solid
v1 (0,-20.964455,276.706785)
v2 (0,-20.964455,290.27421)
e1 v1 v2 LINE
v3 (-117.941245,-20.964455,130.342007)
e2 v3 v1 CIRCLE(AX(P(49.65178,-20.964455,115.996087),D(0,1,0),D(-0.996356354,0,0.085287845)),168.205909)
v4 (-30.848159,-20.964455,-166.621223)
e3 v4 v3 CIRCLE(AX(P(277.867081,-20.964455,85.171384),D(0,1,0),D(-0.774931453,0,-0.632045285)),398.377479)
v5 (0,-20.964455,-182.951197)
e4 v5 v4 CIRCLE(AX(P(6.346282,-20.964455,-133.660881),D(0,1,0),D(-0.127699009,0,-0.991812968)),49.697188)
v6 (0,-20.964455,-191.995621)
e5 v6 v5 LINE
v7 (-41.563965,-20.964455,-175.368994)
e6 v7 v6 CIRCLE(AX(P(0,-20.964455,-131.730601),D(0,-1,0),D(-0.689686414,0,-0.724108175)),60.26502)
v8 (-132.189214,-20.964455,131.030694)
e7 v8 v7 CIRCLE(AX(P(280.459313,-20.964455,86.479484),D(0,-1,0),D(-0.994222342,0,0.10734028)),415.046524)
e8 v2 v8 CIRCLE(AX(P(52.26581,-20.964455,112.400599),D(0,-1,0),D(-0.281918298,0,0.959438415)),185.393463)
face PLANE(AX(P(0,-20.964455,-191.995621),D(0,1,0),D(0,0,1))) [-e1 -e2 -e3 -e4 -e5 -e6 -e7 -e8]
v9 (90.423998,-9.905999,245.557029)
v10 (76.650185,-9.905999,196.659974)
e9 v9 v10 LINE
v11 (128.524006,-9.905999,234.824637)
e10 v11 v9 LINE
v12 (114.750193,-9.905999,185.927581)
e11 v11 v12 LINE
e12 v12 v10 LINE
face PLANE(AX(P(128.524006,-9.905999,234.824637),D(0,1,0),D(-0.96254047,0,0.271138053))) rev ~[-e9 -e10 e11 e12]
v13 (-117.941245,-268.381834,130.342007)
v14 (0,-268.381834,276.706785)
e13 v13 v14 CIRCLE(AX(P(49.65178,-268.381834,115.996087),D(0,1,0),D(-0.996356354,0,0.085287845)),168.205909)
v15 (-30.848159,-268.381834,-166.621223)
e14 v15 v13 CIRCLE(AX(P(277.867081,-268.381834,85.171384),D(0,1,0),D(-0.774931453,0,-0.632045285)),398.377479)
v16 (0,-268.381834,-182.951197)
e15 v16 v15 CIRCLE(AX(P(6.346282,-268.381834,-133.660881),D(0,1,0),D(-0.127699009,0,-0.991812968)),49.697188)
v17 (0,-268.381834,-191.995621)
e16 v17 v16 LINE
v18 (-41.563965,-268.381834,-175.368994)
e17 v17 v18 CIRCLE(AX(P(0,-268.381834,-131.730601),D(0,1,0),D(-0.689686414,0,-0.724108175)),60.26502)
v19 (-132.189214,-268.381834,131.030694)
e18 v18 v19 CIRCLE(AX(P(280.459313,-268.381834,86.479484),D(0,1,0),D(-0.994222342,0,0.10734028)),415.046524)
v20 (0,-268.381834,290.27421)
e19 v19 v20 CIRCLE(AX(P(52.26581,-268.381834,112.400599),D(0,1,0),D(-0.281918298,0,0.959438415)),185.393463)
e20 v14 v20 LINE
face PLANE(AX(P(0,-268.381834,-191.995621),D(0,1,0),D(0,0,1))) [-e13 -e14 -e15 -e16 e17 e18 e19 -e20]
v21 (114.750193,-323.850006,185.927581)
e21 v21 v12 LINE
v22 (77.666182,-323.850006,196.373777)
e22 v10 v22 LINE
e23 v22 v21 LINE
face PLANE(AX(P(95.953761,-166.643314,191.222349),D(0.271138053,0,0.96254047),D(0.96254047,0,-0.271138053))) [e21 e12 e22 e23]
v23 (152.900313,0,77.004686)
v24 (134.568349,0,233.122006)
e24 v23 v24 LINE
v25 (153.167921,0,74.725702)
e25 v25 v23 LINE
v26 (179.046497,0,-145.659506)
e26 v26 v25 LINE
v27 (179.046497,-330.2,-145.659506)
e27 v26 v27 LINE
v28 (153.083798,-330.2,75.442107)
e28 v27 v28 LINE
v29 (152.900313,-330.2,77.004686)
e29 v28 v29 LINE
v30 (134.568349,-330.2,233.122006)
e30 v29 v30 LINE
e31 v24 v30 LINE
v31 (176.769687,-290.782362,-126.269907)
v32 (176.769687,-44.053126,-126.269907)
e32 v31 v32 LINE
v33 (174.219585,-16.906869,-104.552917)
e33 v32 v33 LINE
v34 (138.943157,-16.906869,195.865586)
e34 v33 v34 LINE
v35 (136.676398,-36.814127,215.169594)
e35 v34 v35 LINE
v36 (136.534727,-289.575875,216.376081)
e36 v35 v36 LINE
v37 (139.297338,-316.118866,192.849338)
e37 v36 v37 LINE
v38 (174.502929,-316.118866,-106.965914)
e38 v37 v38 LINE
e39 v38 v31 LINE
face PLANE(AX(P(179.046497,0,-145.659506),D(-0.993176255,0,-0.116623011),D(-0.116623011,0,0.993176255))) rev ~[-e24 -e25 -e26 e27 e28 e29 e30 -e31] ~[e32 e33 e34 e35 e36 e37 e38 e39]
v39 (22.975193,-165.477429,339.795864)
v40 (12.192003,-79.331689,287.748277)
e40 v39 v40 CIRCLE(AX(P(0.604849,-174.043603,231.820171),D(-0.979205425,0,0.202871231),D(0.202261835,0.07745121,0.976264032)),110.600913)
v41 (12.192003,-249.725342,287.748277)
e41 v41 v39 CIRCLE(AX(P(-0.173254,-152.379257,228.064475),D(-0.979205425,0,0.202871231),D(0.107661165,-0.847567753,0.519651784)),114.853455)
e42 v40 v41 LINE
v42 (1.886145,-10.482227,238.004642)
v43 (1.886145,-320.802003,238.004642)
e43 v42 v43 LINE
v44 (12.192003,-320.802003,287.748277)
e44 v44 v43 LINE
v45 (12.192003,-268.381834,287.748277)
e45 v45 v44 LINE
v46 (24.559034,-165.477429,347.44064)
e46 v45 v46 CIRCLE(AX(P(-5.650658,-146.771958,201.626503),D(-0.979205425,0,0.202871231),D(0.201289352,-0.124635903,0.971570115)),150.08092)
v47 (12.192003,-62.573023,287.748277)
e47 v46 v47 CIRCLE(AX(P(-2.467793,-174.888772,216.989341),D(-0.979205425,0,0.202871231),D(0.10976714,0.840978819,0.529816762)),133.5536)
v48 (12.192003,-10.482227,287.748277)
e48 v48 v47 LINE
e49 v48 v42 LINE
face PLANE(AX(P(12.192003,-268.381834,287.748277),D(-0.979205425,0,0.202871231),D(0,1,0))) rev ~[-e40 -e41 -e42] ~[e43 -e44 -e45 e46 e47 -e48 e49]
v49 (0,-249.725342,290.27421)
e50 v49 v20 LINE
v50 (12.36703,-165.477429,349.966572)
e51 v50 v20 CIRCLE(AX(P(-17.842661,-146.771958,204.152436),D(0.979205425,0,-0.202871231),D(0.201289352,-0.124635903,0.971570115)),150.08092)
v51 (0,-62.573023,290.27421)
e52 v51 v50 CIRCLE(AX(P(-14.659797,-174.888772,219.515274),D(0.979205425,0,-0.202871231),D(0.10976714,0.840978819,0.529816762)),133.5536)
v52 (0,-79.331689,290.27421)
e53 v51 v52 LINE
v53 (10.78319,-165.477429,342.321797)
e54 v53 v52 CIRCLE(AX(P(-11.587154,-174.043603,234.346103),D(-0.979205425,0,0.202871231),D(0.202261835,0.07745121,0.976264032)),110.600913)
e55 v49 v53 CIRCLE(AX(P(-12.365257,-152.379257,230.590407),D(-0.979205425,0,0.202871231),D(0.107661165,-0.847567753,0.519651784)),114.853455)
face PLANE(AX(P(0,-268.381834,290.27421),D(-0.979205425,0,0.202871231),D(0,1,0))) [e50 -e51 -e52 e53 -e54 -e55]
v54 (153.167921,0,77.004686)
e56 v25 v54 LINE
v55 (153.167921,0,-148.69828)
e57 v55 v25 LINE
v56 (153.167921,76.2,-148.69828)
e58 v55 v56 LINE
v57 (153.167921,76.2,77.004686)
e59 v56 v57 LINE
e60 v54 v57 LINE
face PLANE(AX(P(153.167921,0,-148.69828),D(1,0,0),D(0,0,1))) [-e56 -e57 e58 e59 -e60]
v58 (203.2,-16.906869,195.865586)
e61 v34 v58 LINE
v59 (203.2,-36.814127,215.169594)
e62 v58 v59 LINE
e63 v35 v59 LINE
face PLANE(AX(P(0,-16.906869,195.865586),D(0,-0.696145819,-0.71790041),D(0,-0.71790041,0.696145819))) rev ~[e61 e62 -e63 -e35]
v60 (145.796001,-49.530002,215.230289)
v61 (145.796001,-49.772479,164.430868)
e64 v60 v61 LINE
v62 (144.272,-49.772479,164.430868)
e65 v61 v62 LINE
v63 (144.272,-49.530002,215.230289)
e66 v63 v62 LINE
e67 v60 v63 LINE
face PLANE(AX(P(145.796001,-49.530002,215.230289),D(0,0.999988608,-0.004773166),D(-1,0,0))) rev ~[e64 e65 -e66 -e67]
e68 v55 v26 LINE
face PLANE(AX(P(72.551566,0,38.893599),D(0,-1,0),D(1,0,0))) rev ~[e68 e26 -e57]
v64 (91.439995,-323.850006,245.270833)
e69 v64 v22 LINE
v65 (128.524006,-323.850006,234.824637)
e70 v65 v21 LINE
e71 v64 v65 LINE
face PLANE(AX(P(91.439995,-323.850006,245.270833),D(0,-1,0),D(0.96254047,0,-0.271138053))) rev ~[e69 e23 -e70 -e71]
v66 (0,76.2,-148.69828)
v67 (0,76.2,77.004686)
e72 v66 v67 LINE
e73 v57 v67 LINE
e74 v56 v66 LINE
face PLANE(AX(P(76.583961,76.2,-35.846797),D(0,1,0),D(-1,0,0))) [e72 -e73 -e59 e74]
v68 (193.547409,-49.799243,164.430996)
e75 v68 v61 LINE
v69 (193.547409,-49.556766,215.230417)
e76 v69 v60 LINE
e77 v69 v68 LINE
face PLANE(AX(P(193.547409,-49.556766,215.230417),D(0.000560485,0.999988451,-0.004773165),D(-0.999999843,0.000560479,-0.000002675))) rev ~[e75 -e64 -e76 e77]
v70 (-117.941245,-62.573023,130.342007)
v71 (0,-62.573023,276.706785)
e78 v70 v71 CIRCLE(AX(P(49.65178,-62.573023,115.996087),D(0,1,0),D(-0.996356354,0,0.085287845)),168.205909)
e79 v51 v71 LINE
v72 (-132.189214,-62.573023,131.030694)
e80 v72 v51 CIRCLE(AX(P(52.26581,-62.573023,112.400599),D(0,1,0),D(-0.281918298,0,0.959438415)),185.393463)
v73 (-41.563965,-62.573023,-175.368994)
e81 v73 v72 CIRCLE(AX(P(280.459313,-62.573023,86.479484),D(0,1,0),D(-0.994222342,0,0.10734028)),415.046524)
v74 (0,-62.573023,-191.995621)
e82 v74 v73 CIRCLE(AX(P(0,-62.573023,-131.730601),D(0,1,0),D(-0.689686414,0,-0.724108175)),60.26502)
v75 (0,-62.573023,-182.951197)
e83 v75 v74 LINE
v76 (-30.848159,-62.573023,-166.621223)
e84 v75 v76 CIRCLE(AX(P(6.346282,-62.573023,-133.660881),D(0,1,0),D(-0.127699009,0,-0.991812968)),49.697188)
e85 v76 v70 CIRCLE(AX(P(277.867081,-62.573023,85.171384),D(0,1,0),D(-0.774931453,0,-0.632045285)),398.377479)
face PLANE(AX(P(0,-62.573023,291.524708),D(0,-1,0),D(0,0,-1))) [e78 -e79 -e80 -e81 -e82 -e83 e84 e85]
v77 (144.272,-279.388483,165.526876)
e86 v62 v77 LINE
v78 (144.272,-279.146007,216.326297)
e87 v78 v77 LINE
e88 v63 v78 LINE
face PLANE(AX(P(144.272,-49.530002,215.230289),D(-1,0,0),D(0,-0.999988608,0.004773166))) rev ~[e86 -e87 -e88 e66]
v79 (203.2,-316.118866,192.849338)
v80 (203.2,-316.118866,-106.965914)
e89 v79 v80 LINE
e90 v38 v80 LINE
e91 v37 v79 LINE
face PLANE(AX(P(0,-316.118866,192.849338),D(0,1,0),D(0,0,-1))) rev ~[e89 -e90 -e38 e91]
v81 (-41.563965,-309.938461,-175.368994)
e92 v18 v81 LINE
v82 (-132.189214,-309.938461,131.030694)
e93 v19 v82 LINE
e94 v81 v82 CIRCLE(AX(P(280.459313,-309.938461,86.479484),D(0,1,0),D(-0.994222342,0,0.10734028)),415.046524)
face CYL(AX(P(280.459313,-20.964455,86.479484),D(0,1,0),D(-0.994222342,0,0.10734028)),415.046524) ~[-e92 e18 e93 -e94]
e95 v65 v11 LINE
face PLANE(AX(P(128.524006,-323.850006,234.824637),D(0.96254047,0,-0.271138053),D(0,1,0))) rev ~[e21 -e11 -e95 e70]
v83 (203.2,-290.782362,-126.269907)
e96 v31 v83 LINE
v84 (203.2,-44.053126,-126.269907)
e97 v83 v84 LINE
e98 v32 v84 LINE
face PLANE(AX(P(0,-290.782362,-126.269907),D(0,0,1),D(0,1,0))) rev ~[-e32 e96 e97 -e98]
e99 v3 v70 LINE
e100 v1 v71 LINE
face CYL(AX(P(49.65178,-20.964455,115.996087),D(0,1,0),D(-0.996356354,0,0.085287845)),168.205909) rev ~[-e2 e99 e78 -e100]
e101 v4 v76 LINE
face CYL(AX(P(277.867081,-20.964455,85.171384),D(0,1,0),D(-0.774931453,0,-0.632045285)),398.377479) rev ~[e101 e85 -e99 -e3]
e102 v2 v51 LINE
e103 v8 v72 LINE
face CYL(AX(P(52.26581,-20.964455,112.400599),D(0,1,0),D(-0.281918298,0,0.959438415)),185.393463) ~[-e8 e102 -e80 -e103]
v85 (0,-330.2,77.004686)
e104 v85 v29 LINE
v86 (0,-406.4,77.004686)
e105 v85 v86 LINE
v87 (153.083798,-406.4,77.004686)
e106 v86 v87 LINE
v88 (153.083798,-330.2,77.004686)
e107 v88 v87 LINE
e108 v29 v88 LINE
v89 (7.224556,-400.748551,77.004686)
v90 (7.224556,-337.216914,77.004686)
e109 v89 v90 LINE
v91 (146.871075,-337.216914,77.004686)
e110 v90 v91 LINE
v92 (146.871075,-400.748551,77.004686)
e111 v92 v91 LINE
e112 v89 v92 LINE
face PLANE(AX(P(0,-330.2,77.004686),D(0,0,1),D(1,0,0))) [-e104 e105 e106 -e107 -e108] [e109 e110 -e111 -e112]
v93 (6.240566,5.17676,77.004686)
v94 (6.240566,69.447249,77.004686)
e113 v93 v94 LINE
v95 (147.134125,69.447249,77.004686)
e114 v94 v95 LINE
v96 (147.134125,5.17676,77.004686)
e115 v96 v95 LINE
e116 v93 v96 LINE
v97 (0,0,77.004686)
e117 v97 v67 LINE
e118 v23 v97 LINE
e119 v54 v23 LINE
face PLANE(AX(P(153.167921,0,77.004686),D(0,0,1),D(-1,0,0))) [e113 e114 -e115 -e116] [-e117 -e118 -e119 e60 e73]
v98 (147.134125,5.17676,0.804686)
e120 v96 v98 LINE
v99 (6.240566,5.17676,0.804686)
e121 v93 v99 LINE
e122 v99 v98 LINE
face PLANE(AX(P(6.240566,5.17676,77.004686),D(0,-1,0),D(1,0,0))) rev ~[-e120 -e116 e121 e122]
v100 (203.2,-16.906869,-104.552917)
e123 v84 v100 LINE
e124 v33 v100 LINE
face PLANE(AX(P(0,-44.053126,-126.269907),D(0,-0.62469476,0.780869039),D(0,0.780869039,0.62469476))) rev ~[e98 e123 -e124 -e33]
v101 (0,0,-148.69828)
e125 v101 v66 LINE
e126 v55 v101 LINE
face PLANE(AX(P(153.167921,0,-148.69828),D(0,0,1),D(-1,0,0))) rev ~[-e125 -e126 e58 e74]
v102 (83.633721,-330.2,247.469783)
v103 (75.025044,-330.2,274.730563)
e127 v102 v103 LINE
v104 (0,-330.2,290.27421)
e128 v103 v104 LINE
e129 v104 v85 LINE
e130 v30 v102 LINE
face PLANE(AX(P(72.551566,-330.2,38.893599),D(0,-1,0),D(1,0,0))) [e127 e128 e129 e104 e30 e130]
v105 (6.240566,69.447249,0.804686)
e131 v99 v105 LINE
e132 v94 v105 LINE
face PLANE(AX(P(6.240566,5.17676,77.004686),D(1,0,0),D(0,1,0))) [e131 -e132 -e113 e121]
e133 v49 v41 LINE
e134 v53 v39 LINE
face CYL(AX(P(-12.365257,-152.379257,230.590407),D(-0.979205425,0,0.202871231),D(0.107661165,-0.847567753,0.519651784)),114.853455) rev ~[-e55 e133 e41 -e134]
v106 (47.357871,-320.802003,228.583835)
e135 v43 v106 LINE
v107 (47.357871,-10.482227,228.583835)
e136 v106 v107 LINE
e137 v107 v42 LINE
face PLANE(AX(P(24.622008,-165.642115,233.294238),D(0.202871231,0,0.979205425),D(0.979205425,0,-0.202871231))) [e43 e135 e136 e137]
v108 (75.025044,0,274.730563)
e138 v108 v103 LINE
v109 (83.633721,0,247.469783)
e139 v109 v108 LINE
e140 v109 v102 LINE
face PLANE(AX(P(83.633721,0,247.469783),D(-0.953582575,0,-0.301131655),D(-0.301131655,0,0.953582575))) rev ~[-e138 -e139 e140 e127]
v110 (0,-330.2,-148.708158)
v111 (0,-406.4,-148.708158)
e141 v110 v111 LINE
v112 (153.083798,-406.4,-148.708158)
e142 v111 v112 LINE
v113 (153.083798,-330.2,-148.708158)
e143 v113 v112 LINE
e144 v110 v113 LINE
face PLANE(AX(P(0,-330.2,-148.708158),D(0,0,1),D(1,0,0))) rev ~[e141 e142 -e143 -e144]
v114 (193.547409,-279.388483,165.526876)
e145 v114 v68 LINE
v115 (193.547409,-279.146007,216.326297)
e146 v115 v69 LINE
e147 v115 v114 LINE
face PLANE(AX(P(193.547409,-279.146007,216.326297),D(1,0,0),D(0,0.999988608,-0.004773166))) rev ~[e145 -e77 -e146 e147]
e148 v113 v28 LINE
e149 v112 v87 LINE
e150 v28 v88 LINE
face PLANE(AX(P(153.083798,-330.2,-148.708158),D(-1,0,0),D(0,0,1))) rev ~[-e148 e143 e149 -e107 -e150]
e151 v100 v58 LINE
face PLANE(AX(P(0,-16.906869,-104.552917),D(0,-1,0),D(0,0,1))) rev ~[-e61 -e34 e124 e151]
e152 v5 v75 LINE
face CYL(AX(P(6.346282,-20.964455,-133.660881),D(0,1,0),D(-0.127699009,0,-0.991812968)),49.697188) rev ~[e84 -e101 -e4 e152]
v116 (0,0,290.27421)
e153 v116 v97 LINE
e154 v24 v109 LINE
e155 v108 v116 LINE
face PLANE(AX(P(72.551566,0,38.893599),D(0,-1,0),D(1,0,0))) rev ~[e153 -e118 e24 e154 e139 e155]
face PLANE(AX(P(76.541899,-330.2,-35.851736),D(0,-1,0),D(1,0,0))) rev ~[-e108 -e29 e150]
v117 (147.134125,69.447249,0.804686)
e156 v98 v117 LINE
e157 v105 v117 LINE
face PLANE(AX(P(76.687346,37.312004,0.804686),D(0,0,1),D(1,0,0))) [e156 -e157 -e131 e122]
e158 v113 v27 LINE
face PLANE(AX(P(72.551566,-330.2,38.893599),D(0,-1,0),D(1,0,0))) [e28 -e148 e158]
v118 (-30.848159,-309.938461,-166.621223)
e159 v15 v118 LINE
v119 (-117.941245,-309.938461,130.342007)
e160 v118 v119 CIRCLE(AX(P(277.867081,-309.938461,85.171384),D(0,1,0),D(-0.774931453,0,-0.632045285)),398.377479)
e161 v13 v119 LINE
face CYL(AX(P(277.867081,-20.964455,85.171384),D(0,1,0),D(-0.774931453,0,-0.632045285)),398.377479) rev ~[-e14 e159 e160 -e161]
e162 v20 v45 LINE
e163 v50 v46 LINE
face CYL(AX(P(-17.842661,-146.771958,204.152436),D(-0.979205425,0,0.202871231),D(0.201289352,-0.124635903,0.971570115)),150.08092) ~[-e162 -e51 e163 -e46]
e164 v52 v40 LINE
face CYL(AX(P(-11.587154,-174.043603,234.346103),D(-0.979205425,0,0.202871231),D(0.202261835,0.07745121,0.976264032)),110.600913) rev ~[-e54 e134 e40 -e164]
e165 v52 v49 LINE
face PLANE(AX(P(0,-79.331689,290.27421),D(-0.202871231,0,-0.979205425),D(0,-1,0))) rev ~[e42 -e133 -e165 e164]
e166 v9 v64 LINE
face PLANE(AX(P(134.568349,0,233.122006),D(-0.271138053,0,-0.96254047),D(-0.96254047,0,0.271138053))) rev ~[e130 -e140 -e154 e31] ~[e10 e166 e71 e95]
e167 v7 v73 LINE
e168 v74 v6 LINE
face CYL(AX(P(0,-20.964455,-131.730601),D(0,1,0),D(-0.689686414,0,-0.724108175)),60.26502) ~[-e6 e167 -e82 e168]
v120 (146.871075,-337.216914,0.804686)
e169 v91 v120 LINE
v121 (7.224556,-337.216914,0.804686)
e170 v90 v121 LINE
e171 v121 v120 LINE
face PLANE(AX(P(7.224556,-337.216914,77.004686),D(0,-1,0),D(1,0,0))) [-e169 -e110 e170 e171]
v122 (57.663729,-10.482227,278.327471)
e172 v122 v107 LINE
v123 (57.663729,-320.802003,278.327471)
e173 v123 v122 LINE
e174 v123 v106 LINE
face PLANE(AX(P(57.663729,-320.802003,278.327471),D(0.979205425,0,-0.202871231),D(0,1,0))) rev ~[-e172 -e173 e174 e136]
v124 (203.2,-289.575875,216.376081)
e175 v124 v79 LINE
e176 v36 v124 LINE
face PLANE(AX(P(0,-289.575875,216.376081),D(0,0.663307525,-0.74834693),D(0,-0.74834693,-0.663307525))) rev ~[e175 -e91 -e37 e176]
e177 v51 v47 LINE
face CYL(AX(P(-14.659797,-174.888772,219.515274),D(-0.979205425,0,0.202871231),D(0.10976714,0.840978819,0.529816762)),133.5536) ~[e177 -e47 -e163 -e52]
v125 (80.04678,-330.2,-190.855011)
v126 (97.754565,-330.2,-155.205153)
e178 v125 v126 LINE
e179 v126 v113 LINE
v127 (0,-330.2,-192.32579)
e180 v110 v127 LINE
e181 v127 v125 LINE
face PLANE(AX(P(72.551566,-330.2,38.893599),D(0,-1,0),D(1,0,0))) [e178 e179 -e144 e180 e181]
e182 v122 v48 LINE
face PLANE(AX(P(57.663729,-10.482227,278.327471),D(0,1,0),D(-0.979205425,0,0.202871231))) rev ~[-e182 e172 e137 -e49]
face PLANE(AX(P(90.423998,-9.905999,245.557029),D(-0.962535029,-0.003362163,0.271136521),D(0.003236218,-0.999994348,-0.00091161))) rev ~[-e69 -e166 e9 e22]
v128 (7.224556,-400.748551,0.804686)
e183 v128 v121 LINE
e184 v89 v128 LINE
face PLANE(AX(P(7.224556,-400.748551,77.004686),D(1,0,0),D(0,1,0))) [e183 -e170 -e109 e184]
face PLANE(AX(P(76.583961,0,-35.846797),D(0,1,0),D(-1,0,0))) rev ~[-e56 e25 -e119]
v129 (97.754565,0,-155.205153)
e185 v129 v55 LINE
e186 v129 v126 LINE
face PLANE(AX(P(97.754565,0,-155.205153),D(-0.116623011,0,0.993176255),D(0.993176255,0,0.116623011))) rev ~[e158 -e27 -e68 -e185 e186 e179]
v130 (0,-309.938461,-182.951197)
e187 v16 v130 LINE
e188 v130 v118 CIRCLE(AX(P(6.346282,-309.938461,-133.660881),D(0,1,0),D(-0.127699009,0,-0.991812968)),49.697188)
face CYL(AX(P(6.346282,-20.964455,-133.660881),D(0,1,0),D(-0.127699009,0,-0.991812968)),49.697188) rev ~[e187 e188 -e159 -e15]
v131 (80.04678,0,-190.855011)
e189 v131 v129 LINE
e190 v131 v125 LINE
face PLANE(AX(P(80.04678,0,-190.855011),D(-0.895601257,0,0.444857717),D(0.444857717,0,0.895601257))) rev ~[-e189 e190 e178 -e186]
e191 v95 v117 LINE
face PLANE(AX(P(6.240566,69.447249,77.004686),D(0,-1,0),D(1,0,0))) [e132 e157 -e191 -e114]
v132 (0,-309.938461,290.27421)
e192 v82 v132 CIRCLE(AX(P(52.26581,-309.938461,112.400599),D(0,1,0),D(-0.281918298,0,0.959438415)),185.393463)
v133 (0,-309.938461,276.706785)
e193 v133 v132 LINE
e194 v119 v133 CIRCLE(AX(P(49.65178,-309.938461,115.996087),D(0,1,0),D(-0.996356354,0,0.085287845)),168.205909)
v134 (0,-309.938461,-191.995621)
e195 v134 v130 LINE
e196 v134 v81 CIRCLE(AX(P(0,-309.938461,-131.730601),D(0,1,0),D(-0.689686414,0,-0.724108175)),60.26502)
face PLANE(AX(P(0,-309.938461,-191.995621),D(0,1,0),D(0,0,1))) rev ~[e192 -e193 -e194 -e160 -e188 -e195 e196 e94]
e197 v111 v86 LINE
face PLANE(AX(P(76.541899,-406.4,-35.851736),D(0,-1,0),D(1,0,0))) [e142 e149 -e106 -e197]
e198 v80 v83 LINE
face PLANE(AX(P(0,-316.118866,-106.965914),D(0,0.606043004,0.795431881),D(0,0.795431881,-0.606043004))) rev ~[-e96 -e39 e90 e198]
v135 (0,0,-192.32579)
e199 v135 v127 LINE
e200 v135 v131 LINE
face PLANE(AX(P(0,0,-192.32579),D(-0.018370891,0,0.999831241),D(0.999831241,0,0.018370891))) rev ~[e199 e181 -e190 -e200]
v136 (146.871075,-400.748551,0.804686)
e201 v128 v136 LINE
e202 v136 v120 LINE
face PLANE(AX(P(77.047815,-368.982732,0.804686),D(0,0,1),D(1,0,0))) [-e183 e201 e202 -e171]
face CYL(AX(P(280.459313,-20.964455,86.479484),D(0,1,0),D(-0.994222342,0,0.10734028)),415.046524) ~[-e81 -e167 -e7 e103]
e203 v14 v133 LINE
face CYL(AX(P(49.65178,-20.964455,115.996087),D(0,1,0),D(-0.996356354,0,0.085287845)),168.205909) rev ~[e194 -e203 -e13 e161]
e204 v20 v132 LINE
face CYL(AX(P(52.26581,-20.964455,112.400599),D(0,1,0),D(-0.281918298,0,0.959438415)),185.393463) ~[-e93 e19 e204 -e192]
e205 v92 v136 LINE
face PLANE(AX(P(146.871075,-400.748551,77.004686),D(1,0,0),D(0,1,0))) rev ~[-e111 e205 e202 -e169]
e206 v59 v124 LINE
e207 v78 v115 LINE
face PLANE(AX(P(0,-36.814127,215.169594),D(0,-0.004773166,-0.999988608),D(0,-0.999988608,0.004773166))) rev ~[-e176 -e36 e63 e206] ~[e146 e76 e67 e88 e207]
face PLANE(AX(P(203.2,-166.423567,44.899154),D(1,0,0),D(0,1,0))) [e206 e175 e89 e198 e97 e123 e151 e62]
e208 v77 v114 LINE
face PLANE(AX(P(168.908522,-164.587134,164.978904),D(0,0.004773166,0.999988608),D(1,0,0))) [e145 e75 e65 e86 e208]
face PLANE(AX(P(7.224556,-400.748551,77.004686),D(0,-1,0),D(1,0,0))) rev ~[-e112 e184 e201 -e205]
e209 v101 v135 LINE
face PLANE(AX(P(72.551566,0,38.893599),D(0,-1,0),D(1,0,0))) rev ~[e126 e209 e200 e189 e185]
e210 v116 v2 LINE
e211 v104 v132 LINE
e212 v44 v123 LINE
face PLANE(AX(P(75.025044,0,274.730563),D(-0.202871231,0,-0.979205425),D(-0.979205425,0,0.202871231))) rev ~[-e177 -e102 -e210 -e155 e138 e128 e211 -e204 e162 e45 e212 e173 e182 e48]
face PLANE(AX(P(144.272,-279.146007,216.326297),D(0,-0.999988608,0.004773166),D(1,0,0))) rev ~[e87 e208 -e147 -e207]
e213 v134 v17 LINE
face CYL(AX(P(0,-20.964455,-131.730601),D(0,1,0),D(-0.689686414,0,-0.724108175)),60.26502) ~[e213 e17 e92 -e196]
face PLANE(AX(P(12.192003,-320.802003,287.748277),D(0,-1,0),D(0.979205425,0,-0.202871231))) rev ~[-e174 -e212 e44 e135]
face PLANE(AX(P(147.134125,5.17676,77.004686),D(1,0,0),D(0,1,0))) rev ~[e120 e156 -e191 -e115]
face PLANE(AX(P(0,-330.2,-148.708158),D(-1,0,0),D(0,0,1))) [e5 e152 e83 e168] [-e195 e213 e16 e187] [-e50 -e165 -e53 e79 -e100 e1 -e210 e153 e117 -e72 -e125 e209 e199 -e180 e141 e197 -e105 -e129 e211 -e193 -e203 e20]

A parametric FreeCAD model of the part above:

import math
import FreeCAD as App
import Part
import Sketcher
Q = App.Units.Quantity

doc = App.newDocument("Part")
body = doc.addObject("PartDesign::Body", "Body")

# Sketch on XZ plane
sketch1 = body.newObject("Sketcher::SketchObject", "Sketch")
sketch1.AttachmentSupport = (doc.getObject("XZ_Plane"), [""])
sketch1.MapMode = "FlatFace"
sketch1.addGeometry(Part.LineSegment(App.Vector(75, 275, 0), App.Vector(0, 290, 0)), False)
sketch1.addGeometry(Part.LineSegment(App.Vector(0, 290, 0), App.Vector(0, -192, 0)), False)
sketch1.addGeometry(Part.LineSegment(App.Vector(0, -192, 0), App.Vector(80, -191, 0)), False)
sketch1.addGeometry(Part.LineSegment(App.Vector(80, -191, 0), App.Vector(98, -155, 0)), False)
sketch1.addGeometry(Part.LineSegment(App.Vector(98, -155, 0), App.Vector(179, -146, 0)), False)
sketch1.addGeometry(Part.LineSegment(App.Vector(179, -146, 0), App.Vector(135, 233, 0)), False)
sketch1.addGeometry(Part.LineSegment(App.Vector(135, 233, 0), App.Vector(84, 247, 0)), False)
sketch1.addGeometry(Part.LineSegment(App.Vector(84, 247, 0), App.Vector(75, 275, 0)), False)
sketch1.addConstraint(Sketcher.Constraint("Coincident", 0, 2, 1, 1))
sketch1.addConstraint(Sketcher.Constraint("Coincident", 1, 2, 2, 1))
sketch1.addConstraint(Sketcher.Constraint("Coincident", 2, 2, 3, 1))
sketch1.addConstraint(Sketcher.Constraint("Coincident", 3, 2, 4, 1))
sketch1.addConstraint(Sketcher.Constraint("Coincident", 4, 2, 5, 1))
sketch1.addConstraint(Sketcher.Constraint("Coincident", 5, 2, 6, 1))
sketch1.addConstraint(Sketcher.Constraint("Coincident", 6, 2, 7, 1))
sketch1.addConstraint(Sketcher.Constraint("Coincident", 7, 2, 0, 1))
sketch1.addConstraint(Sketcher.Constraint("Vertical", 1))
sketch1.addConstraint(Sketcher.Constraint("PointOnObject", 0, 2, -2))
sketch1.addConstraint(Sketcher.Constraint("Perpendicular", 4, 5))
sketch1.addConstraint(Sketcher.Constraint("DistanceY", 1, 2, 1, 1, Q("19 in")))
sketch1.addConstraint(Sketcher.Constraint("Distance", 0, 76.618289))
sketch1.addConstraint(Sketcher.Constraint("Distance", 2, 80.060291))
sketch1.addConstraint(Sketcher.Constraint("Distance", 4, 81.850458))
sketch1.addConstraint(Sketcher.Constraint("Distance", 5, 381.383979))
sketch1.addConstraint(Sketcher.Constraint("Distance", 6, 52.916869))
sketch1.addConstraint(Sketcher.Constraint("Distance", 7, 28.58775))
sketch1.addConstraint(Sketcher.Constraint("DistanceY", -1, 1, 0, 2, 290.27421))
sketch1.addConstraint(Sketcher.Constraint("DistanceX", -1, 1, 2, 2, 80.04678))
sketch1.addConstraint(Sketcher.Constraint("DistanceX", -1, 1, 5, 2, 134.568349))
sketch1.addConstraint(Sketcher.Constraint("DistanceX", -1, 1, 6, 2, 83.633721))
sketch1.addConstraint(Sketcher.Constraint("DistanceY", 2, 2, 3, 2, 35.649858))
sketch1.addConstraint(Sketcher.Constraint("DistanceX", 3, 2, 4, 2, 81.291931))
pad1 = body.newObject("PartDesign::Pad", "Pad")
pad1.Profile = sketch1
pad1.Length = Q("13 in")

# Sketch on YZ plane
sketch2 = body.newObject("Sketcher::SketchObject", "Sketch001")
sketch2.AttachmentSupport = (doc.getObject("YZ_Plane"), [""])
sketch2.MapMode = "FlatFace"
sketch2.addGeometry(Part.LineSegment(App.Vector(-37, 215, 0), App.Vector(-290, 216, 0)), False)
sketch2.addGeometry(Part.LineSegment(App.Vector(-290, 216, 0), App.Vector(-316, 193, 0)), False)
sketch2.addGeometry(Part.LineSegment(App.Vector(-316, 193, 0), App.Vector(-316, -107, 0)), False)
sketch2.addGeometry(Part.LineSegment(App.Vector(-316, -107, 0), App.Vector(-291, -126, 0)), False)
sketch2.addGeometry(Part.LineSegment(App.Vector(-291, -126, 0), App.Vector(-44, -126, 0)), False)
sketch2.addGeometry(Part.LineSegment(App.Vector(-44, -126, 0), App.Vector(-17, -105, 0)), False)
sketch2.addGeometry(Part.LineSegment(App.Vector(-17, -105, 0), App.Vector(-17, 196, 0)), False)
sketch2.addGeometry(Part.LineSegment(App.Vector(-17, 196, 0), App.Vector(-37, 215, 0)), False)
sketch2.addConstraint(Sketcher.Constraint("Coincident", 0, 2, 1, 1))
sketch2.addConstraint(Sketcher.Constraint("Coincident", 1, 2, 2, 1))
sketch2.addConstraint(Sketcher.Constraint("Coincident", 2, 2, 3, 1))
sketch2.addConstraint(Sketcher.Constraint("Coincident", 3, 2, 4, 1))
sketch2.addConstraint(Sketcher.Constraint("Coincident", 4, 2, 5, 1))
sketch2.addConstraint(Sketcher.Constraint("Coincident", 5, 2, 6, 1))
sketch2.addConstraint(Sketcher.Constraint("Coincident", 6, 2, 7, 1))
sketch2.addConstraint(Sketcher.Constraint("Coincident", 7, 2, 0, 1))
sketch2.addConstraint(Sketcher.Constraint("Vertical", 2))
sketch2.addConstraint(Sketcher.Constraint("Horizontal", 4))
sketch2.addConstraint(Sketcher.Constraint("Vertical", 6))
sketch2.addConstraint(Sketcher.Constraint("DistanceY", 2, 2, 0, 2, Q("12.7299998 in")))
sketch2.addConstraint(Sketcher.Constraint("DistanceX", 2, 2, 5, 2, Q("11.7799999 in")))
sketch2.addConstraint(Sketcher.Constraint("DistanceY", 6, 1, 6, 2, Q("11.8275001 in")))
sketch2.addConstraint(Sketcher.Constraint("DistanceX", 4, 2, -1, 1, Q("1.734375 in")))
sketch2.addConstraint(Sketcher.Constraint("DistanceY", 2, 2, 5, 2, Q("0.0949999 in")))
sketch2.addConstraint(Sketcher.Constraint("DistanceX", 4, 2, 7, 2, Q("0.285 in")))
sketch2.addConstraint(Sketcher.Constraint("DistanceX", 2, 2, 3, 2, Q("0.9975002 in")))
sketch2.addConstraint(Sketcher.Constraint("DistanceY", 4, 2, 7, 2, Q("13.4425 in")))
sketch2.addConstraint(Sketcher.Constraint("Distance", 1, 35.468832))
sketch2.addConstraint(Sketcher.Constraint("Distance", 5, 34.764162))
sketch2.addConstraint(Sketcher.Constraint("DistanceX", 4, 1, 4, 2, 246.729236))
sketch2.addConstraint(Sketcher.Constraint("DistanceY", 2, 2, 2, 1, 299.815252))
sketch2.addConstraint(Sketcher.Constraint("DistanceY", -1, 1, 0, 2, 216.376081))
pad2 = body.newObject("PartDesign::Pad", "Pad001")
pad2.Profile = sketch2
pad2.Length = Q("8 in")

# Sketch on YZ plane
sketch3 = body.newObject("Sketcher::SketchObject", "Sketch002")
sketch3.AttachmentSupport = (doc.getObject("YZ_Plane"), [""])
sketch3.MapMode = "FlatFace"
sketch3.addGeometry(Part.LineSegment(App.Vector(-21, -192, 0), App.Vector(-21, 292, 0)), False)
sketch3.addGeometry(Part.LineSegment(App.Vector(-21, 292, 0), App.Vector(-63, 292, 0)), False)
sketch3.addGeometry(Part.LineSegment(App.Vector(-63, 292, 0), App.Vector(-63, -192, 0)), False)
sketch3.addGeometry(Part.LineSegment(App.Vector(-63, -192, 0), App.Vector(-21, -192, 0)), False)
sketch3.addGeometry(Part.LineSegment(App.Vector(-310, 292, 0), App.Vector(-310, -192, 0)), False)
sketch3.addGeometry(Part.LineSegment(App.Vector(-310, -192, 0), App.Vector(-268, -192, 0)), False)
sketch3.addGeometry(Part.LineSegment(App.Vector(-268, -192, 0), App.Vector(-268, 292, 0)), False)
sketch3.addGeometry(Part.LineSegment(App.Vector(-268, 292, 0), App.Vector(-310, 292, 0)), False)
sketch3.addConstraint(Sketcher.Constraint("Coincident", 0, 2, 1, 1))
sketch3.addConstraint(Sketcher.Constraint("Coincident", 1, 2, 2, 1))
sketch3.addConstraint(Sketcher.Constraint("Coincident", 2, 2, 3, 1))
sketch3.addConstraint(Sketcher.Constraint("Coincident", 3, 2, 0, 1))
sketch3.addConstraint(Sketcher.Constraint("Coincident", 4, 2, 5, 1))
sketch3.addConstraint(Sketcher.Constraint("Coincident", 5, 2, 6, 1))
sketch3.addConstraint(Sketcher.Constraint("Coincident", 6, 2, 7, 1))
sketch3.addConstraint(Sketcher.Constraint("Coincident", 7, 2, 4, 1))
sketch3.addConstraint(Sketcher.Constraint("Vertical", 0))
sketch3.addConstraint(Sketcher.Constraint("Horizontal", 1))
sketch3.addConstraint(Sketcher.Constraint("Vertical", 2))
sketch3.addConstraint(Sketcher.Constraint("Horizontal", 3))
sketch3.addConstraint(Sketcher.Constraint("Vertical", 4))
sketch3.addConstraint(Sketcher.Constraint("Horizontal", 5))
sketch3.addConstraint(Sketcher.Constraint("Vertical", 6))
sketch3.addConstraint(Sketcher.Constraint("Horizontal", 7))
sketch3.addConstraint(Sketcher.Constraint("Horizontal", 3, 2, 4, 2))
sketch3.addConstraint(Sketcher.Constraint("Horizontal", 1, 2, 6, 2))
sketch3.addConstraint(Sketcher.Constraint("DistanceX", 1, 2, 1, 1, 41.608568))
sketch3.addConstraint(Sketcher.Constraint("DistanceY", 0, 1, 0, 2, 483.520329))
sketch3.addConstraint(Sketcher.Constraint("DistanceX", 5, 1, 5, 2, 41.556627))
sketch3.addConstraint(Sketcher.Constraint("DistanceY", -1, 1, 0, 2, 291.524708))
sketch3.addConstraint(Sketcher.Constraint("DistanceX", 4, 2, -1, 1, 309.938461))
sketch3.addConstraint(Sketcher.Constraint("DistanceX", 5, 2, 2, 2, 205.808811))
pad3 = body.newObject("PartDesign::Pad", "Pad002")
pad3.Profile = sketch3
pad3.Length = Q("5.5 in")
pad3.Reversed = True

# Sketch on XZ plane
sketch4 = body.newObject("Sketcher::SketchObject", "Sketch003")
sketch4.AttachmentSupport = (doc.getObject("XZ_Plane"), [""])
sketch4.MapMode = "FlatFace"
sketch4.AttachmentOffset = App.Placement(App.Vector(0, 0, 20.964455), App.Rotation())
sketch4.addGeometry(Part.LineSegment(App.Vector(0, 291.5, 0), App.Vector(0, 290.3, 0)), False)
sketch4.addGeometry(Part.ArcOfCircle(Part.Circle(App.Vector(52.3, 112.4, 0), App.Vector(0, 0, 1), 185.4), math.radians(106), math.radians(174)), False)
sketch4.addGeometry(Part.ArcOfCircle(Part.Circle(App.Vector(280.5, 86.5, 0), App.Vector(0, 0, 1), 415), math.radians(174), math.radians(219)), False)
sketch4.addGeometry(Part.ArcOfCircle(Part.Circle(App.Vector(0, -131.7, 0), App.Vector(0, 0, 1), 60.3), math.radians(-134), math.radians(-90)), False)
sketch4.addGeometry(Part.LineSegment(App.Vector(0, -192, 0), App.Vector(-139.7, -192, 0)), False)
sketch4.addGeometry(Part.LineSegment(App.Vector(-139.7, -192, 0), App.Vector(-139.7, 291.5, 0)), False)
sketch4.addGeometry(Part.LineSegment(App.Vector(-139.7, 291.5, 0), App.Vector(0, 291.5, 0)), False)
sketch4.addConstraint(Sketcher.Constraint("Coincident", 0, 2, 1, 1))
sketch4.addConstraint(Sketcher.Constraint("Coincident", 1, 2, 2, 1))
sketch4.addConstraint(Sketcher.Constraint("Coincident", 2, 2, 3, 1))
sketch4.addConstraint(Sketcher.Constraint("Tangent", 3, 2, 4, 1))
sketch4.addConstraint(Sketcher.Constraint("Coincident", 4, 2, 5, 1))
sketch4.addConstraint(Sketcher.Constraint("Coincident", 5, 2, 6, 1))
sketch4.addConstraint(Sketcher.Constraint("Coincident", 6, 2, 0, 1))
sketch4.addConstraint(Sketcher.Constraint("Vertical", 0))
sketch4.addConstraint(Sketcher.Constraint("Horizontal", 4))
sketch4.addConstraint(Sketcher.Constraint("Vertical", 5))
sketch4.addConstraint(Sketcher.Constraint("Horizontal", 6))
sketch4.addConstraint(Sketcher.Constraint("PointOnObject", 3, 3, -2))
sketch4.addConstraint(Sketcher.Constraint("PointOnObject", 0, 2, -2))
sketch4.addConstraint(Sketcher.Constraint("DistanceX", 4, 2, 4, 1, Q("5.5 in")))
sketch4.addConstraint(Sketcher.Constraint("Radius", 3, 60.26502))
sketch4.addConstraint(Sketcher.Constraint("DistanceY", 0, 2, 0, 1, 1.250498))
sketch4.addConstraint(Sketcher.Constraint("Radius", 1, 185.393463))
sketch4.addConstraint(Sketcher.Constraint("Radius", 2, 415.046524))
sketch4.addConstraint(Sketcher.Constraint("DistanceY", 5, 1, 5, 2, 483.520329))
sketch4.addConstraint(Sketcher.Constraint("DistanceY", -1, 1, 1, 3, 112.400599))
sketch4.addConstraint(Sketcher.Constraint("DistanceY", 3, 3, -1, 1, 131.730601))
sketch4.addConstraint(Sketcher.Constraint("DistanceY", 2, 3, 1, 2, 44.55121))
sketch4.addConstraint(Sketcher.Constraint("DistanceX", 1, 2, 2, 2, 90.625249))
pocket1 = body.newObject("PartDesign::Pocket", "Pocket")
pocket1.Profile = sketch4
pocket1.Length = Q("12 in")
pocket1.Reversed = True

# Sketch on XZ plane
sketch5 = body.newObject("Sketcher::SketchObject", "Sketch004")
sketch5.AttachmentSupport = (doc.getObject("XZ_Plane"), [""])
sketch5.MapMode = "FlatFace"
sketch5.AttachmentOffset = App.Placement(App.Vector(0, 0, 20.964455), App.Rotation())
sketch5.addGeometry(Part.ArcOfCircle(Part.Circle(App.Vector(277.867081, 85.171384, 0), App.Vector(0, 0, 1), 398.377479), math.radians(173.489431), math.radians(219.201182)), False)
sketch5.addGeometry(Part.ArcOfCircle(Part.Circle(App.Vector(49.65178, 115.996087, 0), App.Vector(0, 0, 1), 168.205909), math.radians(107.168602), math.radians(175.107423)), False)
sketch5.addGeometry(Part.LineSegment(App.Vector(0, 276.706785, 0), App.Vector(0, -182.951197, 0)), False)
sketch5.addGeometry(Part.ArcOfCircle(Part.Circle(App.Vector(6.346282, -133.660881, 0), App.Vector(0, 0, 1), 49.697188), math.radians(-138.453821), math.radians(-97.336647)), False)
sketch5.addConstraint(Sketcher.Constraint("Coincident", 0, 1, 1, 2))
sketch5.addConstraint(Sketcher.Constraint("Coincident", 1, 1, 2, 1))
sketch5.addConstraint(Sketcher.Constraint("Coincident", 2, 2, 3, 2))
sketch5.addConstraint(Sketcher.Constraint("Coincident", 3, 1, 0, 2))
sketch5.addConstraint(Sketcher.Constraint("Vertical", 2))
sketch5.addConstraint(Sketcher.Constraint("PointOnObject", 1, 1, -2))
sketch5.addConstraint(Sketcher.Constraint("Radius", 0, 398.377479))
sketch5.addConstraint(Sketcher.Constraint("Radius", 1, 168.205909))
sketch5.addConstraint(Sketcher.Constraint("Radius", 3, 49.697188))
sketch5.addConstraint(Sketcher.Constraint("DistanceY", 1, 3, 0, 1, Q("0.5648 in")))
sketch5.addConstraint(Sketcher.Constraint("DistanceY", 2, 2, 2, 1, 459.657982))
sketch5.addConstraint(Sketcher.Constraint("DistanceX", 1, 3, 0, 3, 228.2153))
sketch5.addConstraint(Sketcher.Constraint("DistanceX", 3, 3, 1, 3, 43.305499))
sketch5.addConstraint(Sketcher.Constraint("DistanceY", 0, 3, 1, 1, 191.535401))
sketch5.addConstraint(Sketcher.Constraint("DistanceY", 3, 3, -1, 1, 133.660881))
pocket2 = body.newObject("PartDesign::Pocket", "Pocket001")
pocket2.Profile = sketch5
pocket2.Length = Q("12 in")
pocket2.Reversed = True

# Sketch on an angled plane
sketch6 = body.newObject("Sketcher::SketchObject", "Sketch005")
sketch6.Placement = App.Placement(App.Vector(0, 1.02619, 214.988974), App.Rotation(App.Vector(1, 0, 0), App.Vector(0, 0.999988608, -0.004773166), App.Vector(0, 0.004773166, 0.999988608), "ZXY"))
sketch6.addGeometry(Part.LineSegment(App.Vector(193.5, -50.6, 0), App.Vector(145.8, -50.6, 0)), False)
sketch6.addGeometry(Part.LineSegment(App.Vector(145.8, -50.6, 0), App.Vector(144.3, -50.6, 0)), False)
sketch6.addGeometry(Part.LineSegment(App.Vector(144.3, -50.6, 0), App.Vector(144.3, -280.2, 0)), False)
sketch6.addGeometry(Part.LineSegment(App.Vector(144.3, -280.2, 0), App.Vector(193.5, -280.2, 0)), False)
sketch6.addGeometry(Part.LineSegment(App.Vector(193.5, -280.2, 0), App.Vector(193.5, -50.6, 0)), False)
sketch6.addConstraint(Sketcher.Constraint("Coincident", 0, 2, 1, 1))
sketch6.addConstraint(Sketcher.Constraint("Coincident", 1, 2, 2, 1))
sketch6.addConstraint(Sketcher.Constraint("Coincident", 2, 2, 3, 1))
sketch6.addConstraint(Sketcher.Constraint("Coincident", 3, 2, 4, 1))
sketch6.addConstraint(Sketcher.Constraint("Coincident", 4, 2, 0, 1))
sketch6.addConstraint(Sketcher.Constraint("Horizontal", 1))
sketch6.addConstraint(Sketcher.Constraint("Vertical", 2))
sketch6.addConstraint(Sketcher.Constraint("Horizontal", 3))
sketch6.addConstraint(Sketcher.Constraint("Vertical", 4))
sketch6.addConstraint(Sketcher.Constraint("DistanceX", 1, 2, 1, 1, Q("0.0600001 in")))
sketch6.addConstraint(Sketcher.Constraint("DistanceX", -1, 1, 0, 2, Q("5.74 in")))
sketch6.addConstraint(Sketcher.Constraint("DistanceX", 3, 1, 3, 2, 49.27541))
sketch6.addConstraint(Sketcher.Constraint("DistanceY", 2, 2, 2, 1, 229.61862))
sketch6.addConstraint(Sketcher.Constraint("DistanceY", 4, 1, 4, 2, 229.591856))
sketch6.addConstraint(Sketcher.Constraint("DistanceY", 4, 2, -1, 1, 50.583532))
pocket3 = body.newObject("PartDesign::Pocket", "Pocket002")
pocket3.Profile = sketch6
pocket3.Length = Q("2 in")

# Sketch on an angled plane
sketch7 = body.newObject("Sketcher::SketchObject", "Sketch006")
sketch7.Placement = App.Placement(App.Vector(57.663729, 0, 278.327471), App.Rotation(App.Vector(0.979205425, 0, -0.202871231), App.Vector(0, 1.000000001, 0), App.Vector(0.202871231, 0, 0.979205425), "ZXY"))
sketch7.addGeometry(Part.LineSegment(App.Vector(0, -10, 0), App.Vector(-46, -10, 0)), False)
sketch7.addGeometry(Part.LineSegment(App.Vector(-46, -10, 0), App.Vector(-46, -321, 0)), False)
sketch7.addGeometry(Part.LineSegment(App.Vector(-46, -321, 0), App.Vector(0, -321, 0)), False)
sketch7.addGeometry(Part.LineSegment(App.Vector(0, -321, 0), App.Vector(0, -10, 0)), False)
sketch7.addConstraint(Sketcher.Constraint("Coincident", 0, 2, 1, 1))
sketch7.addConstraint(Sketcher.Constraint("Coincident", 1, 2, 2, 1))
sketch7.addConstraint(Sketcher.Constraint("Coincident", 2, 2, 3, 1))
sketch7.addConstraint(Sketcher.Constraint("Coincident", 3, 2, 0, 1))
sketch7.addConstraint(Sketcher.Constraint("Horizontal", 0))
sketch7.addConstraint(Sketcher.Constraint("Vertical", 1))
sketch7.addConstraint(Sketcher.Constraint("Horizontal", 2))
sketch7.addConstraint(Sketcher.Constraint("Vertical", 3))
sketch7.addConstraint(Sketcher.Constraint("PointOnObject", 2, 2, -2))
sketch7.addConstraint(Sketcher.Constraint("DistanceY", 1, 2, -1, 1, Q("12.6300001 in")))
sketch7.addConstraint(Sketcher.Constraint("DistanceX", 0, 2, 0, 1, 46.437372))
sketch7.addConstraint(Sketcher.Constraint("DistanceY", 1, 2, 1, 1, 310.319776))
pocket4 = body.newObject("PartDesign::Pocket", "Pocket003")
pocket4.Profile = sketch7
pocket4.Length = Q("2 in")

# Sketch on an angled plane
sketch8 = body.newObject("Sketcher::SketchObject", "Sketch007")
sketch8.Placement = App.Placement(App.Vector(70.733401, 0, 251.103674), App.Rotation(App.Vector(0.96254047, 0, -0.271138053), App.Vector(0, 1, 0), App.Vector(0.271138053, 0, 0.96254047), "ZXY"))
sketch8.addGeometry(Part.LineSegment(App.Vector(60, -10, 0), App.Vector(20, -10, 0)), False)
sketch8.addGeometry(Part.LineSegment(App.Vector(20, -10, 0), App.Vector(22, -324, 0)), False)
sketch8.addGeometry(Part.LineSegment(App.Vector(22, -324, 0), App.Vector(60, -324, 0)), False)
sketch8.addGeometry(Part.LineSegment(App.Vector(60, -324, 0), App.Vector(60, -10, 0)), False)
sketch8.addConstraint(Sketcher.Constraint("Coincident", 0, 2, 1, 1))
sketch8.addConstraint(Sketcher.Constraint("Coincident", 1, 2, 2, 1))
sketch8.addConstraint(Sketcher.Constraint("Coincident", 2, 2, 3, 1))
sketch8.addConstraint(Sketcher.Constraint("Coincident", 3, 2, 0, 1))
sketch8.addConstraint(Sketcher.Constraint("Horizontal", 0))
sketch8.addConstraint(Sketcher.Constraint("Horizontal", 2))
sketch8.addConstraint(Sketcher.Constraint("Vertical", 3))
sketch8.addConstraint(Sketcher.Constraint("DistanceY", 0, 2, -1, 1, Q("0.3899999 in")))
sketch8.addConstraint(Sketcher.Constraint("DistanceX", 0, 2, 0, 1, 39.582759))
sketch8.addConstraint(Sketcher.Constraint("Distance", 1, 313.945782))
sketch8.addConstraint(Sketcher.Constraint("DistanceX", 2, 1, 2, 2, 38.527222))
sketch8.addConstraint(Sketcher.Constraint("DistanceX", -1, 1, 1, 2, 21.512439))
pocket5 = body.newObject("PartDesign::Pocket", "Pocket004")
pocket5.Profile = sketch8
pocket5.Length = Q("2 in")

# Sketch on an angled plane
sketch9 = body.newObject("Sketcher::SketchObject", "Sketch008")
sketch9.Placement = App.Placement(App.Vector(57.663729, 0, 278.327471), App.Rotation(App.Vector(0.979205425, 0, -0.202871231), App.Vector(0, 1.000000001, 0), App.Vector(0.202871231, 0, 0.979205425), "ZXY"))
sketch9.addGeometry(Part.LineSegment(App.Vector(-59, -63, 0), App.Vector(-59, -268, 0)), False)
sketch9.addGeometry(Part.LineSegment(App.Vector(-59, -268, 0), App.Vector(-46, -268, 0)), False)
sketch9.addGeometry(Part.LineSegment(App.Vector(-46, -268, 0), App.Vector(-46, -63, 0)), False)
sketch9.addGeometry(Part.LineSegment(App.Vector(-46, -63, 0), App.Vector(-59, -63, 0)), False)
sketch9.addConstraint(Sketcher.Constraint("Coincident", 0, 2, 1, 1))
sketch9.addConstraint(Sketcher.Constraint("Coincident", 1, 2, 2, 1))
sketch9.addConstraint(Sketcher.Constraint("Coincident", 2, 2, 3, 1))
sketch9.addConstraint(Sketcher.Constraint("Coincident", 3, 2, 0, 1))
sketch9.addConstraint(Sketcher.Constraint("Vertical", 0))
sketch9.addConstraint(Sketcher.Constraint("Horizontal", 1))
sketch9.addConstraint(Sketcher.Constraint("Vertical", 2))
sketch9.addConstraint(Sketcher.Constraint("Horizontal", 3))
sketch9.addConstraint(Sketcher.Constraint("DistanceY", 0, 2, 0, 1, 205.808811))
sketch9.addConstraint(Sketcher.Constraint("DistanceX", 1, 1, 1, 2, 12.450915))
sketch9.addConstraint(Sketcher.Constraint("DistanceX", 1, 2, -1, 1, 46.437372))
sketch9.addConstraint(Sketcher.Constraint("DistanceY", 0, 2, -1, 1, 268.381834))
pad4 = body.newObject("PartDesign::Pad", "Pad003")
pad4.Profile = sketch9
pad4.Length = Q("2.4 in")

# Sketch on an angled plane
sketch10 = body.newObject("Sketcher::SketchObject", "Sketch009")
sketch10.Placement = App.Placement(App.Vector(-57.663729, 0, 11.946739), App.Rotation(App.Vector(0, -1, 0), App.Vector(0.202871231, 0, 0.979205425), App.Vector(-0.979205425, 0, 0.202871231), "ZXY"))
sketch10.addGeometry(Part.ArcOfCircle(Part.Circle(App.Vector(175, 212, 0), App.Vector(0, 0, 1), 134), math.radians(94), math.radians(147)), False)
sketch10.addGeometry(Part.LineSegment(App.Vector(165, 345, 0), App.Vector(63, 345, 0)), False)
sketch10.addGeometry(Part.LineSegment(App.Vector(63, 345, 0), App.Vector(63, 284, 0)), False)
sketch10.addGeometry(Part.LineSegment(App.Vector(268, 345, 0), App.Vector(165, 345, 0)), False)
sketch10.addGeometry(Part.ArcOfCircle(Part.Circle(App.Vector(147, 196, 0), App.Vector(0, 0, 1), 150), math.radians(36), math.radians(83)), False)
sketch10.addGeometry(Part.LineSegment(App.Vector(268, 284, 0), App.Vector(268, 345, 0)), False)
sketch10.addConstraint(Sketcher.Constraint("Coincident", 0, 1, 1, 1))
sketch10.addConstraint(Sketcher.Constraint("Coincident", 1, 2, 2, 1))
sketch10.addConstraint(Sketcher.Constraint("Coincident", 2, 2, 0, 2))
sketch10.addConstraint(Sketcher.Constraint("Coincident", 3, 2, 4, 2))
sketch10.addConstraint(Sketcher.Constraint("Coincident", 4, 1, 5, 1))
sketch10.addConstraint(Sketcher.Constraint("Coincident", 5, 2, 3, 1))
sketch10.addConstraint(Sketcher.Constraint("Horizontal", 1))
sketch10.addConstraint(Sketcher.Constraint("Vertical", 2))
sketch10.addConstraint(Sketcher.Constraint("Horizontal", 3))
sketch10.addConstraint(Sketcher.Constraint("Vertical", 5))
sketch10.addConstraint(Sketcher.Constraint("Coincident", 3, 2, 0, 1))
sketch10.addConstraint(Sketcher.Constraint("Horizontal", 2, 2, 4, 1))
sketch10.addConstraint(Sketcher.Constraint("Equal", 1, 3))
sketch10.addConstraint(Sketcher.Constraint("DistanceY", 2, 2, 2, 1, Q("2.4 in")))
sketch10.addConstraint(Sketcher.Constraint("Radius", 0, 133.5536))
sketch10.addConstraint(Sketcher.Constraint("Radius", 4, 150.08092))
sketch10.addConstraint(Sketcher.Constraint("DistanceX", 1, 2, 1, 1, 102.904405))
sketch10.addConstraint(Sketcher.Constraint("DistanceX", -1, 1, 0, 3, 174.888772))
sketch10.addConstraint(Sketcher.Constraint("DistanceY", -1, 1, 4, 3, 196.28741))
pocket6 = body.newObject("PartDesign::Pocket", "Pocket005")
pocket6.Profile = sketch10
pocket6.Length = Q("1 in")

# Sketch on an angled plane
sketch11 = body.newObject("Sketcher::SketchObject", "Sketch010")
sketch11.Placement = App.Placement(App.Vector(-57.663729, 0, 11.946739), App.Rotation(App.Vector(0, -1, 0), App.Vector(0.202871231, 0, 0.979205425), App.Vector(-0.979205425, 0, 0.202871231), "ZXY"))
sketch11.addGeometry(Part.ArcOfCircle(Part.Circle(App.Vector(174, 227, 0), App.Vector(0, 0, 1), 111), math.radians(94), math.radians(149)), False)
sketch11.addGeometry(Part.LineSegment(App.Vector(79, 284, 0), App.Vector(250, 284, 0)), False)
sketch11.addGeometry(Part.ArcOfCircle(Part.Circle(App.Vector(152, 223, 0), App.Vector(0, 0, 1), 115), math.radians(32), math.radians(83)), False)
sketch11.addConstraint(Sketcher.Constraint("Coincident", 0, 2, 1, 1))
sketch11.addConstraint(Sketcher.Constraint("Coincident", 1, 2, 2, 1))
sketch11.addConstraint(Sketcher.Constraint("Coincident", 2, 2, 0, 1))
sketch11.addConstraint(Sketcher.Constraint("Horizontal", 1))
sketch11.addConstraint(Sketcher.Constraint("Radius", 0, 110.600913))
sketch11.addConstraint(Sketcher.Constraint("Radius", 2, 114.853455))
sketch11.addConstraint(Sketcher.Constraint("DistanceX", 1, 1, 1, 2, 170.393653))
sketch11.addConstraint(Sketcher.Constraint("DistanceX", -1, 1, 0, 2, 79.331689))
sketch11.addConstraint(Sketcher.Constraint("DistanceY", -1, 1, 0, 2, 284.238081))
sketch11.addConstraint(Sketcher.Constraint("DistanceX", -1, 1, 2, 2, 165.477429))
sketch11.addConstraint(Sketcher.Constraint("DistanceY", -1, 1, 2, 2, 337.390959))
pocket7 = body.newObject("PartDesign::Pocket", "Pocket006")
pocket7.Profile = sketch11
pocket7.Length = Q("1 in")

# Sketch on XZ plane
sketch12 = body.newObject("Sketcher::SketchObject", "Sketch011")
sketch12.AttachmentSupport = (doc.getObject("XZ_Plane"), [""])
sketch12.MapMode = "FlatFace"
sketch12.addGeometry(Part.LineSegment(App.Vector(153, 77, 0), App.Vector(153, -149, 0)), False)
sketch12.addGeometry(Part.LineSegment(App.Vector(153, -149, 0), App.Vector(0, -149, 0)), False)
sketch12.addGeometry(Part.LineSegment(App.Vector(0, -149, 0), App.Vector(0, 77, 0)), False)
sketch12.addGeometry(Part.LineSegment(App.Vector(0, 77, 0), App.Vector(153, 77, 0)), False)
sketch12.addConstraint(Sketcher.Constraint("Coincident", 0, 2, 1, 1))
sketch12.addConstraint(Sketcher.Constraint("Coincident", 1, 2, 2, 1))
sketch12.addConstraint(Sketcher.Constraint("Coincident", 2, 2, 3, 1))
sketch12.addConstraint(Sketcher.Constraint("Coincident", 3, 2, 0, 1))
sketch12.addConstraint(Sketcher.Constraint("Vertical", 0))
sketch12.addConstraint(Sketcher.Constraint("Horizontal", 1))
sketch12.addConstraint(Sketcher.Constraint("Vertical", 2))
sketch12.addConstraint(Sketcher.Constraint("Horizontal", 3))
sketch12.addConstraint(Sketcher.Constraint("PointOnObject", 1, 2, -2))
sketch12.addConstraint(Sketcher.Constraint("DistanceX", 1, 2, 1, 1, 153.167921))
sketch12.addConstraint(Sketcher.Constraint("DistanceY", 0, 2, 0, 1, 225.702966))
sketch12.addConstraint(Sketcher.Constraint("DistanceY", 0, 2, -1, 1, 148.69828))
pad5 = body.newObject("PartDesign::Pad", "Pad004")
pad5.Profile = sketch12
pad5.Length = Q("3 in")
pad5.Reversed = True

# Sketch on XZ plane
sketch13 = body.newObject("Sketcher::SketchObject", "Sketch012")
sketch13.AttachmentSupport = (doc.getObject("XZ_Plane"), [""])
sketch13.MapMode = "FlatFace"
sketch13.AttachmentOffset = App.Placement(App.Vector(0, 0, 13 * 25.4), App.Rotation())
sketch13.addGeometry(Part.LineSegment(App.Vector(0, 77, 0), App.Vector(0, -149, 0)), False)
sketch13.addGeometry(Part.LineSegment(App.Vector(0, -149, 0), App.Vector(153, -149, 0)), False)
sketch13.addGeometry(Part.LineSegment(App.Vector(153, -149, 0), App.Vector(153, 77, 0)), False)
sketch13.addGeometry(Part.LineSegment(App.Vector(153, 77, 0), App.Vector(0, 77, 0)), False)
sketch13.addConstraint(Sketcher.Constraint("Coincident", 0, 2, 1, 1))
sketch13.addConstraint(Sketcher.Constraint("Coincident", 1, 2, 2, 1))
sketch13.addConstraint(Sketcher.Constraint("Coincident", 2, 2, 3, 1))
sketch13.addConstraint(Sketcher.Constraint("Coincident", 3, 2, 0, 1))
sketch13.addConstraint(Sketcher.Constraint("Vertical", 0))
sketch13.addConstraint(Sketcher.Constraint("Horizontal", 1))
sketch13.addConstraint(Sketcher.Constraint("Vertical", 2))
sketch13.addConstraint(Sketcher.Constraint("Horizontal", 3))
sketch13.addConstraint(Sketcher.Constraint("PointOnObject", 0, 2, -2))
sketch13.addConstraint(Sketcher.Constraint("DistanceX", 1, 1, 1, 2, 153.083798))
sketch13.addConstraint(Sketcher.Constraint("DistanceY", 0, 2, 0, 1, 225.712844))
sketch13.addConstraint(Sketcher.Constraint("DistanceY", 0, 2, -1, 1, 148.708158))
pad6 = body.newObject("PartDesign::Pad", "Pad005")
pad6.Profile = sketch13
pad6.Length = Q("3 in")

# Sketch on XY plane
sketch14 = body.newObject("Sketcher::SketchObject", "Sketch013")
sketch14.AttachmentSupport = (doc.getObject("XY_Plane"), [""])
sketch14.MapMode = "FlatFace"
sketch14.AttachmentOffset = App.Placement(App.Vector(0, 0, 77.004686), App.Rotation())
sketch14.addGeometry(Part.LineSegment(App.Vector(7, -337, 0), App.Vector(7, -401, 0)), False)
sketch14.addGeometry(Part.LineSegment(App.Vector(7, -401, 0), App.Vector(147, -401, 0)), False)
sketch14.addGeometry(Part.LineSegment(App.Vector(147, -401, 0), App.Vector(147, -337, 0)), False)
sketch14.addGeometry(Part.LineSegment(App.Vector(147, -337, 0), App.Vector(7, -337, 0)), False)
sketch14.addConstraint(Sketcher.Constraint("Coincident", 0, 2, 1, 1))
sketch14.addConstraint(Sketcher.Constraint("Coincident", 1, 2, 2, 1))
sketch14.addConstraint(Sketcher.Constraint("Coincident", 2, 2, 3, 1))
sketch14.addConstraint(Sketcher.Constraint("Coincident", 3, 2, 0, 1))
sketch14.addConstraint(Sketcher.Constraint("Vertical", 0))
sketch14.addConstraint(Sketcher.Constraint("Horizontal", 1))
sketch14.addConstraint(Sketcher.Constraint("Vertical", 2))
sketch14.addConstraint(Sketcher.Constraint("Horizontal", 3))
sketch14.addConstraint(Sketcher.Constraint("DistanceX", 1, 1, 1, 2, 139.646519))
sketch14.addConstraint(Sketcher.Constraint("DistanceY", 0, 2, 0, 1, 63.531637))
sketch14.addConstraint(Sketcher.Constraint("DistanceY", 0, 2, -1, 1, 400.748551))
sketch14.addConstraint(Sketcher.Constraint("DistanceX", -1, 1, 0, 2, 7.224556))
pocket8 = body.newObject("PartDesign::Pocket", "Pocket007")
pocket8.Profile = sketch14
pocket8.Length = Q("3 in")

# Sketch on XY plane
sketch15 = body.newObject("Sketcher::SketchObject", "Sketch014")
sketch15.AttachmentSupport = (doc.getObject("XY_Plane"), [""])
sketch15.MapMode = "FlatFace"
sketch15.AttachmentOffset = App.Placement(App.Vector(0, 0, 77.004686), App.Rotation())
sketch15.addGeometry(Part.LineSegment(App.Vector(6, 69, 0), App.Vector(6, 5, 0)), False)
sketch15.addGeometry(Part.LineSegment(App.Vector(6, 5, 0), App.Vector(147, 5, 0)), False)
sketch15.addGeometry(Part.LineSegment(App.Vector(147, 5, 0), App.Vector(147, 69, 0)), False)
sketch15.addGeometry(Part.LineSegment(App.Vector(147, 69, 0), App.Vector(6, 69, 0)), False)
sketch15.addConstraint(Sketcher.Constraint("Coincident", 0, 2, 1, 1))
sketch15.addConstraint(Sketcher.Constraint("Coincident", 1, 2, 2, 1))
sketch15.addConstraint(Sketcher.Constraint("Coincident", 2, 2, 3, 1))
sketch15.addConstraint(Sketcher.Constraint("Coincident", 3, 2, 0, 1))
sketch15.addConstraint(Sketcher.Constraint("Vertical", 0))
sketch15.addConstraint(Sketcher.Constraint("Horizontal", 1))
sketch15.addConstraint(Sketcher.Constraint("Vertical", 2))
sketch15.addConstraint(Sketcher.Constraint("Horizontal", 3))
sketch15.addConstraint(Sketcher.Constraint("DistanceX", 1, 1, 1, 2, 140.893559))
sketch15.addConstraint(Sketcher.Constraint("DistanceY", 0, 2, 0, 1, 64.270489))
sketch15.addConstraint(Sketcher.Constraint("DistanceY", -1, 1, 0, 2, 5.17676))
sketch15.addConstraint(Sketcher.Constraint("DistanceX", -1, 1, 0, 2, 6.240566))
pocket9 = body.newObject("PartDesign::Pocket", "Pocket008")
pocket9.Profile = sketch15
pocket9.Length = Q("3 in")

doc.recompute()
